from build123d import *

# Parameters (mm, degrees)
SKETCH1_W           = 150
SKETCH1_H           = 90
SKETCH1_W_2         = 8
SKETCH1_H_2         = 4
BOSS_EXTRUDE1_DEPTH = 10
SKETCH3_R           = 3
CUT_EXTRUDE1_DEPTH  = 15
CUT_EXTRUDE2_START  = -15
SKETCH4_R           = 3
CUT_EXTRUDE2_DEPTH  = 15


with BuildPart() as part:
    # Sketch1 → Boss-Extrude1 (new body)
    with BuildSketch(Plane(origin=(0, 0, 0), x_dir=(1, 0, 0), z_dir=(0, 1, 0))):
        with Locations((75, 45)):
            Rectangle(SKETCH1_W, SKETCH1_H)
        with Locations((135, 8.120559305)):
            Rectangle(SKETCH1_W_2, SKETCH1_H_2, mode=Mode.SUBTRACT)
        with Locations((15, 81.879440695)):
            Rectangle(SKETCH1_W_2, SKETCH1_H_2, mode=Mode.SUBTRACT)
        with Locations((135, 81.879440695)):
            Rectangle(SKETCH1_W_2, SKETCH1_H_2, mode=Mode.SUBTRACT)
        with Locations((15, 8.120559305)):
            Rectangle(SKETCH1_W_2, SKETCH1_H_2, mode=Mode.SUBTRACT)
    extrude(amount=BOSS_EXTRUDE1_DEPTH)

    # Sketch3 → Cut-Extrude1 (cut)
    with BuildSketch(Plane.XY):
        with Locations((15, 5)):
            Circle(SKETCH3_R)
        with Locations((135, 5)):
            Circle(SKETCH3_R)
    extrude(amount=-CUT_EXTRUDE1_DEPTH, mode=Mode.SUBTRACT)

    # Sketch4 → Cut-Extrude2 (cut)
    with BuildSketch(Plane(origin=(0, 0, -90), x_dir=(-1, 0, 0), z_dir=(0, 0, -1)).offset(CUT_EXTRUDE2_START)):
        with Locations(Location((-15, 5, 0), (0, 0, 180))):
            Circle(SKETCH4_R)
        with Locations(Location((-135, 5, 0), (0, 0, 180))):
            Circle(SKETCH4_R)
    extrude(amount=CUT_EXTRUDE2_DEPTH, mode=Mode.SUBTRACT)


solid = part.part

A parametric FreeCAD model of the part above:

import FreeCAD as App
import Part
import Sketcher


def add_polygon(sketch, points):
    """Adds a closed chain of lines whose ends are joined by coincident constraints."""
    first, n = sketch.GeometryCount, len(points)
    for a, b in zip(points, points[1:] + points[:1]):
        sketch.addGeometry(Part.LineSegment(App.Vector(*a, 0), App.Vector(*b, 0)), False)
    for i in range(n):
        sketch.addConstraint(Sketcher.Constraint("Coincident", first + i, 2, first + (i + 1) % n, 1))

doc = App.newDocument("Part")
body = doc.addObject("PartDesign::Body", "Body")

# Sketch on XZ plane
sketch1 = body.newObject("Sketcher::SketchObject", "Sketch")
sketch1.AttachmentSupport = (doc.getObject("XZ_Plane"), [""])
sketch1.MapMode = "FlatFace"
add_polygon(sketch1, [(0, -90), (0, 0), (150, 0), (150, -90)])  # lines 0-3
add_polygon(sketch1, [(19, -6.1), (11, -6.1), (11, -10.1), (19, -10.1)])  # lines 4-7
add_polygon(sketch1, [(139, -6.1), (131, -6.1), (131, -10.1), (139, -10.1)])  # lines 8-11
add_polygon(sketch1, [(19, -79.9), (11, -79.9), (11, -83.9), (19, -83.9)])  # lines 12-15
add_polygon(sketch1, [(139, -79.9), (131, -79.9), (131, -83.9), (139, -83.9)])  # lines 16-19
sketch1.addConstraint(Sketcher.Constraint("Vertical", 0))
sketch1.addConstraint(Sketcher.Constraint("Horizontal", 1))
sketch1.addConstraint(Sketcher.Constraint("Vertical", 2))
sketch1.addConstraint(Sketcher.Constraint("Horizontal", 3))
sketch1.addConstraint(Sketcher.Constraint("Horizontal", 4))
sketch1.addConstraint(Sketcher.Constraint("Vertical", 5))
sketch1.addConstraint(Sketcher.Constraint("Horizontal", 6))
sketch1.addConstraint(Sketcher.Constraint("Vertical", 7))
sketch1.addConstraint(Sketcher.Constraint("Horizontal", 8))
sketch1.addConstraint(Sketcher.Constraint("Vertical", 9))
sketch1.addConstraint(Sketcher.Constraint("Horizontal", 10))
sketch1.addConstraint(Sketcher.Constraint("Vertical", 11))
sketch1.addConstraint(Sketcher.Constraint("Horizontal", 12))
sketch1.addConstraint(Sketcher.Constraint("Vertical", 13))
sketch1.addConstraint(Sketcher.Constraint("Horizontal", 14))
sketch1.addConstraint(Sketcher.Constraint("Vertical", 15))
sketch1.addConstraint(Sketcher.Constraint("Horizontal", 16))
sketch1.addConstraint(Sketcher.Constraint("Vertical", 17))
sketch1.addConstraint(Sketcher.Constraint("Horizontal", 18))
sketch1.addConstraint(Sketcher.Constraint("Vertical", 19))
sketch1.addConstraint(Sketcher.Constraint("Coincident", 0, 2, -1, 1))
sketch1.addConstraint(Sketcher.Constraint("Horizontal", 7, 2, 8, 2))
sketch1.addConstraint(Sketcher.Constraint("Horizontal", 6, 2, 9, 2))
sketch1.addConstraint(Sketcher.Constraint("Horizontal", 15, 2, 16, 2))
sketch1.addConstraint(Sketcher.Constraint("Horizontal", 14, 2, 17, 2))
sketch1.addConstraint(Sketcher.Constraint("Vertical", 5, 2, 12, 2))
sketch1.addConstraint(Sketcher.Constraint("Vertical", 7, 2, 14, 2))
sketch1.addConstraint(Sketcher.Constraint("Vertical", 9, 2, 16, 2))
sketch1.addConstraint(Sketcher.Constraint("Vertical", 11, 2, 18, 2))
sketch1.addConstraint(Sketcher.Constraint("Equal", 6, 8))
sketch1.addConstraint(Sketcher.Constraint("Equal", 11, 13))
sketch1.addConstraint(Sketcher.Constraint("DistanceX", 1, 1, 1, 2, 150.0))
sketch1.addConstraint(Sketcher.Constraint("DistanceX", 4, 2, 4, 1, 8.0))
sketch1.addConstraint(Sketcher.Constraint("DistanceY", 0, 1, 0, 2, 90.0))
sketch1.addConstraint(Sketcher.Constraint("DistanceY", 5, 2, 5, 1, 4.0))
sketch1.addConstraint(Sketcher.Constraint("DistanceX", -1, 1, 4, 2, 11.0))
sketch1.addConstraint(Sketcher.Constraint("DistanceX", -1, 1, 8, 2, 131.0))
sketch1.addConstraint(Sketcher.Constraint("DistanceY", 4, 2, -1, 1, 6.120559))
sketch1.addConstraint(Sketcher.Constraint("DistanceY", 12, 2, -1, 1, 79.879441))
pad1 = body.newObject("PartDesign::Pad", "Pad")
pad1.Profile = sketch1
pad1.Length = 10
pad1.Reversed = True

# Sketch on XY plane
sketch2 = body.newObject("Sketcher::SketchObject", "Sketch001")
sketch2.AttachmentSupport = (doc.getObject("XY_Plane"), [""])
sketch2.MapMode = "FlatFace"
sketch2.addGeometry(Part.Circle(App.Vector(15, 5, 0), App.Vector(0, 0, 1), 3), False)
sketch2.addGeometry(Part.Circle(App.Vector(135, 5, 0), App.Vector(0, 0, 1), 3), False)
sketch2.addConstraint(Sketcher.Constraint("Equal", 0, 1))
sketch2.addConstraint(Sketcher.Constraint("Horizontal", 0, 3, 1, 3))
sketch2.addConstraint(Sketcher.Constraint("Diameter", 0, 6.0))
sketch2.addConstraint(Sketcher.Constraint("DistanceX", -1, 1, 0, 3, 15.0))
sketch2.addConstraint(Sketcher.Constraint("DistanceY", -1, 1, 0, 3, 5.0))
sketch2.addConstraint(Sketcher.Constraint("DistanceX", -1, 1, 1, 3, 135.0))
pocket1 = body.newObject("PartDesign::Pocket", "Pocket")
pocket1.Profile = sketch2
pocket1.Length = 15

# Sketch on XY plane
sketch3 = body.newObject("Sketcher::SketchObject", "Sketch002")
sketch3.AttachmentSupport = (doc.getObject("XY_Plane"), [""])
sketch3.MapMode = "FlatFace"
sketch3.AttachmentOffset = App.Placement(App.Vector(0, 0, -75), App.Rotation())
sketch3.addGeometry(Part.Circle(App.Vector(15, 5, 0), App.Vector(0, 0, 1), 3), False)
sketch3.addGeometry(Part.Circle(App.Vector(135, 5, 0), App.Vector(0, 0, 1), 3), False)
sketch3.addConstraint(Sketcher.Constraint("Equal", 0, 1))
sketch3.addConstraint(Sketcher.Constraint("Horizontal", 0, 3, 1, 3))
sketch3.addConstraint(Sketcher.Constraint("Diameter", 0, 6.0))
sketch3.addConstraint(Sketcher.Constraint("DistanceX", -1, 1, 0, 3, 15.0))
sketch3.addConstraint(Sketcher.Constraint("DistanceY", -1, 1, 0, 3, 5.0))
sketch3.addConstraint(Sketcher.Constraint("DistanceX", -1, 1, 1, 3, 135.0))
pocket2 = body.newObject("PartDesign::Pocket", "Pocket001")
pocket2.Profile = sketch3
pocket2.Length = 15

doc.recompute()
